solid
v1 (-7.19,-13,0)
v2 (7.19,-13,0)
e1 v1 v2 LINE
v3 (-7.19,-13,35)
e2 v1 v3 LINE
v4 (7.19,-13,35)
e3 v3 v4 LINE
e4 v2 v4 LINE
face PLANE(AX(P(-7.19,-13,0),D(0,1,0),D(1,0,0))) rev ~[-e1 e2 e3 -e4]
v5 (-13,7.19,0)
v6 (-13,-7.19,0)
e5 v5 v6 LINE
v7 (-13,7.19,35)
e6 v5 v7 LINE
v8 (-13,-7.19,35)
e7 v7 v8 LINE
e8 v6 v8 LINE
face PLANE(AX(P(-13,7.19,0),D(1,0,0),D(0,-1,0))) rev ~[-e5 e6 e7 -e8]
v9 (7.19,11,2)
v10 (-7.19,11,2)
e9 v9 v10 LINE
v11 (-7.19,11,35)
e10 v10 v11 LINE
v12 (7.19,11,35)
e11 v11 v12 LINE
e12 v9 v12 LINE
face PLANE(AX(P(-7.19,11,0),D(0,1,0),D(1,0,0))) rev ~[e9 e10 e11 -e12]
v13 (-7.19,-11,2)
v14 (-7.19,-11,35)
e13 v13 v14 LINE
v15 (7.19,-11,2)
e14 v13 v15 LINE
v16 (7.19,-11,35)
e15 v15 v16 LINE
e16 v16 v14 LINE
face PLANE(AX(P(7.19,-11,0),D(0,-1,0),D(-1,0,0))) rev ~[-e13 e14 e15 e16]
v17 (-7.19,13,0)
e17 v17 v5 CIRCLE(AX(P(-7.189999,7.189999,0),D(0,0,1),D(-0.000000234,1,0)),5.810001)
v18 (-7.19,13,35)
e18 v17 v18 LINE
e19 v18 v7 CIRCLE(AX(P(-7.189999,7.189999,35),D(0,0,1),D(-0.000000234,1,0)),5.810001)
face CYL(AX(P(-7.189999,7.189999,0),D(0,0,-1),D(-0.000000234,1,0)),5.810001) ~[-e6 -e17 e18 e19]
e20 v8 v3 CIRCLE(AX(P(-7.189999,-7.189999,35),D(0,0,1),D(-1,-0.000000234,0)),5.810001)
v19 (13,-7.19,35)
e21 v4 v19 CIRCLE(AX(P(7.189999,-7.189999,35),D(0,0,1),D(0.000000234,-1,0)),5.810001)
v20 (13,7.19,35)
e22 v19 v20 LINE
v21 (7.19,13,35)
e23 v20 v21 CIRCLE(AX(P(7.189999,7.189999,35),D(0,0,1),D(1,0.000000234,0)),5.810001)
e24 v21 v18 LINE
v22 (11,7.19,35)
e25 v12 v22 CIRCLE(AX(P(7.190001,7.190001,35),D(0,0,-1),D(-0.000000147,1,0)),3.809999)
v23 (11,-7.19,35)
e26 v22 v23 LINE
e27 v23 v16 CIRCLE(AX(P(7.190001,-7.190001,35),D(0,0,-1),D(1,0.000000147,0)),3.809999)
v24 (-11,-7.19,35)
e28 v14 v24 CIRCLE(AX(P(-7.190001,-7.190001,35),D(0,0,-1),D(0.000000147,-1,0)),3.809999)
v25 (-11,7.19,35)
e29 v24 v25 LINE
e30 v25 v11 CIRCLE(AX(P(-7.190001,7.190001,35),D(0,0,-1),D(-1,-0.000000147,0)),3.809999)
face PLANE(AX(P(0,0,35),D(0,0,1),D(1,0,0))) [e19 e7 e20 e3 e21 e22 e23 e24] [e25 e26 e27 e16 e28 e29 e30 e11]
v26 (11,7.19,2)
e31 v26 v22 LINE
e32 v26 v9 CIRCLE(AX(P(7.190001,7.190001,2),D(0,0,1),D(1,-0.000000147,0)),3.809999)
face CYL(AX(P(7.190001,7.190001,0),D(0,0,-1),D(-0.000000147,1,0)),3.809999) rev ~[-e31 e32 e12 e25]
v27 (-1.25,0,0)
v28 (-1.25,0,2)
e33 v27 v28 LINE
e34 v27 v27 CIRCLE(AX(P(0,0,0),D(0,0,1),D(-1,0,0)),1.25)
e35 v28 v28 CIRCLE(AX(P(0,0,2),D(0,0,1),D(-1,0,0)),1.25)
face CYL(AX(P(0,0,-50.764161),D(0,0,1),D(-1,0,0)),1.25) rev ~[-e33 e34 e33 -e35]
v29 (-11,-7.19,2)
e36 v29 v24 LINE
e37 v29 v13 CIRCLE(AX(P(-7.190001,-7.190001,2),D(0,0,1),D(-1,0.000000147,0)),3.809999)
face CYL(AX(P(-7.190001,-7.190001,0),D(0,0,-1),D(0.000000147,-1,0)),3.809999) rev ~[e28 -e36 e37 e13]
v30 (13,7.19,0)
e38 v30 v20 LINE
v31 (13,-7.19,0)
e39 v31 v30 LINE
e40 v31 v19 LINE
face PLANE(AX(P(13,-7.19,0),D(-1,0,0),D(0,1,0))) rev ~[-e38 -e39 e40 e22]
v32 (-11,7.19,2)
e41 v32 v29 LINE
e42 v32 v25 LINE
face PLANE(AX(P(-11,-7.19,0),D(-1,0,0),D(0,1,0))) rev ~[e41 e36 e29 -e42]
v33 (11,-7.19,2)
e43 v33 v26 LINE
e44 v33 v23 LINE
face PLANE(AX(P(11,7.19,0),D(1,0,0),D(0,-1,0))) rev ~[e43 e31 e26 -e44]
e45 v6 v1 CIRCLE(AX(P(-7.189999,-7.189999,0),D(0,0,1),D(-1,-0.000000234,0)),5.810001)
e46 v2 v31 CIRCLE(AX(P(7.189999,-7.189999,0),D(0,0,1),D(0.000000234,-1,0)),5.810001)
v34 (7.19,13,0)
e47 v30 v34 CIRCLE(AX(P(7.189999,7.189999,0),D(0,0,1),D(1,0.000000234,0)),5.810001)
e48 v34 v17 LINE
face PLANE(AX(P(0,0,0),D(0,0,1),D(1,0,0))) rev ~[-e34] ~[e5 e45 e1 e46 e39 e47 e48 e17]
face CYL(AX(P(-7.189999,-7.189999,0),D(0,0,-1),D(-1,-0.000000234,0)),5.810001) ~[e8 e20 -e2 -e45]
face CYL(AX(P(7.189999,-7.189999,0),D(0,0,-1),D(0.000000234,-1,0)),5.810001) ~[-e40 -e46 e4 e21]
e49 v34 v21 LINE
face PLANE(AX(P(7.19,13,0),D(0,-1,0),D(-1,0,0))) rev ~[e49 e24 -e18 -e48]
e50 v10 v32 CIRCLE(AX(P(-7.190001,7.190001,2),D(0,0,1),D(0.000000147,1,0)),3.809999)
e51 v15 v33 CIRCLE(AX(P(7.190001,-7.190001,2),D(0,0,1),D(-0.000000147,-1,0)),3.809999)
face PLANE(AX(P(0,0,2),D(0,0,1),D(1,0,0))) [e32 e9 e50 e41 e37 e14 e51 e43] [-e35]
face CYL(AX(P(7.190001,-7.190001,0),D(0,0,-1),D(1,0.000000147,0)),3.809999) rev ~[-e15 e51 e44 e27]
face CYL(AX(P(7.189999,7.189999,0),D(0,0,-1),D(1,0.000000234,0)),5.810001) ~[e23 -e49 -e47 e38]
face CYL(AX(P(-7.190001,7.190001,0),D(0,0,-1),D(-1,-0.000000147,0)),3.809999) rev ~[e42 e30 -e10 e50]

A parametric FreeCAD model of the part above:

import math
import FreeCAD as App
import Part
import Sketcher

doc = App.newDocument("Part")
params = doc.addObject("Spreadsheet::Sheet", "Params")
for row, (alias, value) in enumerate([
    ("sketch1_radius", "5.810001 mm"),
    ("sketch1_radius2", "3.809999 mm"),
    ("pad1_length", "35 mm"),
    ("sketch2_radius", "3.809999 mm"),
    ("pad2_length", "2 mm"),
    ("sketch3_diameter", "2.5 mm"),
    ("hole_diameter", "2.5 mm"),
], start=1):
    params.set(f"A{row}", alias)
    params.set(f"B{row}", "=" + value)
    params.setAlias(f"B{row}", alias)

body = doc.addObject("PartDesign::Body", "Body")

# Sketch on XY plane
sketch1 = body.newObject("Sketcher::SketchObject", "Sketch")
sketch1.AttachmentSupport = (doc.getObject("XY_Plane"), [""])
sketch1.MapMode = "FlatFace"
sketch1.addGeometry(Part.LineSegment(App.Vector(13, -7.2, 0), App.Vector(13, 7.2, 0)), False)
sketch1.addGeometry(Part.ArcOfCircle(Part.Circle(App.Vector(7.2, 7.2, 0), App.Vector(0, 0, 1), 5.8), math.radians(0), math.radians(90)), False)
sketch1.addGeometry(Part.LineSegment(App.Vector(7.2, 13, 0), App.Vector(-7.2, 13, 0)), False)
sketch1.addGeometry(Part.ArcOfCircle(Part.Circle(App.Vector(-7.2, 7.2, 0), App.Vector(0, 0, 1), 5.8), math.radians(90), math.radians(180)), False)
sketch1.addGeometry(Part.LineSegment(App.Vector(-13, 7.2, 0), App.Vector(-13, -7.2, 0)), False)
sketch1.addGeometry(Part.ArcOfCircle(Part.Circle(App.Vector(-7.2, -7.2, 0), App.Vector(0, 0, 1), 5.8), math.radians(-180), math.radians(-90)), False)
sketch1.addGeometry(Part.LineSegment(App.Vector(-7.2, -13, 0), App.Vector(7.2, -13, 0)), False)
sketch1.addGeometry(Part.ArcOfCircle(Part.Circle(App.Vector(7.2, -7.2, 0), App.Vector(0, 0, 1), 5.8), math.radians(-90), math.radians(0)), False)
sketch1.addGeometry(Part.LineSegment(App.Vector(-11, -7.2, 0), App.Vector(-11, 7.2, 0)), False)
sketch1.addGeometry(Part.ArcOfCircle(Part.Circle(App.Vector(-7.2, 7.2, 0), App.Vector(0, 0, 1), 3.8), math.radians(90), math.radians(180)), False)
sketch1.addGeometry(Part.LineSegment(App.Vector(-7.2, 11, 0), App.Vector(7.2, 11, 0)), False)
sketch1.addGeometry(Part.ArcOfCircle(Part.Circle(App.Vector(7.2, 7.2, 0), App.Vector(0, 0, 1), 3.8), math.radians(0), math.radians(90)), False)
sketch1.addGeometry(Part.LineSegment(App.Vector(11, 7.2, 0), App.Vector(11, -7.2, 0)), False)
sketch1.addGeometry(Part.ArcOfCircle(Part.Circle(App.Vector(7.2, -7.2, 0), App.Vector(0, 0, 1), 3.8), math.radians(-90), math.radians(0)), False)
sketch1.addGeometry(Part.LineSegment(App.Vector(7.2, -11, 0), App.Vector(-7.2, -11, 0)), False)
sketch1.addGeometry(Part.ArcOfCircle(Part.Circle(App.Vector(-7.2, -7.2, 0), App.Vector(0, 0, 1), 3.8), math.radians(180), math.radians(270)), False)
sketch1.addConstraint(Sketcher.Constraint("Tangent", 0, 2, 1, 1))
sketch1.addConstraint(Sketcher.Constraint("Tangent", 1, 2, 2, 1))
sketch1.addConstraint(Sketcher.Constraint("Tangent", 2, 2, 3, 1))
sketch1.addConstraint(Sketcher.Constraint("Tangent", 3, 2, 4, 1))
sketch1.addConstraint(Sketcher.Constraint("Tangent", 4, 2, 5, 1))
sketch1.addConstraint(Sketcher.Constraint("Tangent", 5, 2, 6, 1))
sketch1.addConstraint(Sketcher.Constraint("Tangent", 6, 2, 7, 1))
sketch1.addConstraint(Sketcher.Constraint("Tangent", 7, 2, 0, 1))
sketch1.addConstraint(Sketcher.Constraint("Tangent", 8, 2, 9, 2))
sketch1.addConstraint(Sketcher.Constraint("Tangent", 9, 1, 10, 1))
sketch1.addConstraint(Sketcher.Constraint("Tangent", 10, 2, 11, 2))
sketch1.addConstraint(Sketcher.Constraint("Tangent", 11, 1, 12, 1))
sketch1.addConstraint(Sketcher.Constraint("Tangent", 12, 2, 13, 2))
sketch1.addConstraint(Sketcher.Constraint("Tangent", 13, 1, 14, 1))
sketch1.addConstraint(Sketcher.Constraint("Tangent", 14, 2, 15, 2))
sketch1.addConstraint(Sketcher.Constraint("Tangent", 15, 1, 8, 1))
sketch1.addConstraint(Sketcher.Constraint("Vertical", 0))
sketch1.addConstraint(Sketcher.Constraint("Horizontal", 2))
sketch1.addConstraint(Sketcher.Constraint("Vertical", 4))
sketch1.addConstraint(Sketcher.Constraint("Horizontal", 6))
sketch1.addConstraint(Sketcher.Constraint("Vertical", 8))
sketch1.addConstraint(Sketcher.Constraint("Horizontal", 10))
sketch1.addConstraint(Sketcher.Constraint("Vertical", 12))
sketch1.addConstraint(Sketcher.Constraint("Horizontal", 14))
sketch1.addConstraint(Sketcher.Constraint("Coincident", 9, 3, 3, 3))
sketch1.addConstraint(Sketcher.Constraint("Coincident", 11, 3, 1, 3))
sketch1.addConstraint(Sketcher.Constraint("Coincident", 13, 3, 7, 3))
sketch1.addConstraint(Sketcher.Constraint("Equal", 1, 3))
sketch1.addConstraint(Sketcher.Constraint("Equal", 3, 5))
sketch1.addConstraint(Sketcher.Constraint("Equal", 5, 7))
sketch1.addConstraint(Sketcher.Constraint("Equal", 13, 15))
sketch1.addConstraint(Sketcher.Constraint("Symmetric", 1, 3, 5, 3, -1, 1))
sketch1.addConstraint(Sketcher.Constraint("Equal", 14, 0))
sketch1.addConstraint(Sketcher.Constraint("Radius", 1, 5.810001))
sketch1.addConstraint(Sketcher.Constraint("Radius", 9, 3.809999))
sketch1.addConstraint(Sketcher.Constraint("DistanceX", -1, 1, 0, 2, 13.0))
sketch1.setExpression("Constraints[33]", "Params.sketch1_radius")
sketch1.setExpression("Constraints[34]", "Params.sketch1_radius2")
pad1 = body.newObject("PartDesign::Pad", "Pad")
pad1.Profile = sketch1
pad1.setExpression("Length", "Params.pad1_length")

# Sketch on XY plane
sketch2 = body.newObject("Sketcher::SketchObject", "Sketch001")
sketch2.AttachmentSupport = (doc.getObject("XY_Plane"), [""])
sketch2.MapMode = "FlatFace"
sketch2.addGeometry(Part.LineSegment(App.Vector(7.2, 11, 0), App.Vector(-7.2, 11, 0)), False)
sketch2.addGeometry(Part.ArcOfCircle(Part.Circle(App.Vector(-7.2, 7.2, 0), App.Vector(0, 0, 1), 3.8), math.radians(90), math.radians(180)), False)
sketch2.addGeometry(Part.LineSegment(App.Vector(-11, 7.2, 0), App.Vector(-11, -7.2, 0)), False)
sketch2.addGeometry(Part.ArcOfCircle(Part.Circle(App.Vector(-7.2, -7.2, 0), App.Vector(0, 0, 1), 3.8), math.radians(180), math.radians(270)), False)
sketch2.addGeometry(Part.LineSegment(App.Vector(-7.2, -11, 0), App.Vector(7.2, -11, 0)), False)
sketch2.addGeometry(Part.ArcOfCircle(Part.Circle(App.Vector(7.2, -7.2, 0), App.Vector(0, 0, 1), 3.8), math.radians(-90), math.radians(0)), False)
sketch2.addGeometry(Part.LineSegment(App.Vector(11, -7.2, 0), App.Vector(11, 7.2, 0)), False)
sketch2.addGeometry(Part.ArcOfCircle(Part.Circle(App.Vector(7.2, 7.2, 0), App.Vector(0, 0, 1), 3.8), math.radians(0), math.radians(90)), False)
sketch2.addConstraint(Sketcher.Constraint("Tangent", 0, 2, 1, 1))
sketch2.addConstraint(Sketcher.Constraint("Tangent", 1, 2, 2, 1))
sketch2.addConstraint(Sketcher.Constraint("Tangent", 2, 2, 3, 1))
sketch2.addConstraint(Sketcher.Constraint("Tangent", 3, 2, 4, 1))
sketch2.addConstraint(Sketcher.Constraint("Tangent", 4, 2, 5, 1))
sketch2.addConstraint(Sketcher.Constraint("Tangent", 5, 2, 6, 1))
sketch2.addConstraint(Sketcher.Constraint("Tangent", 6, 2, 7, 1))
sketch2.addConstraint(Sketcher.Constraint("Tangent", 7, 2, 0, 1))
sketch2.addConstraint(Sketcher.Constraint("Horizontal", 0))
sketch2.addConstraint(Sketcher.Constraint("Vertical", 2))
sketch2.addConstraint(Sketcher.Constraint("Horizontal", 4))
sketch2.addConstraint(Sketcher.Constraint("Vertical", 6))
sketch2.addConstraint(Sketcher.Constraint("Equal", 1, 3))
sketch2.addConstraint(Sketcher.Constraint("Equal", 3, 5))
sketch2.addConstraint(Sketcher.Constraint("Equal", 5, 7))
sketch2.addConstraint(Sketcher.Constraint("Symmetric", 1, 3, 5, 3, -1, 1))
sketch2.addConstraint(Sketcher.Constraint("Equal", 4, 2))
sketch2.addConstraint(Sketcher.Constraint("Radius", 1, 3.809999))
sketch2.addConstraint(Sketcher.Constraint("DistanceY", -1, 1, 0, 2, 11.0))
sketch2.setExpression("Constraints[17]", "Params.sketch2_radius")
pad2 = body.newObject("PartDesign::Pad", "Pad001")
pad2.Profile = sketch2
pad2.setExpression("Length", "Params.pad2_length")

# Sketch on XY plane
sketch3 = body.newObject("Sketcher::SketchObject", "Sketch002")
sketch3.AttachmentSupport = (doc.getObject("XY_Plane"), [""])
sketch3.MapMode = "FlatFace"
sketch3.addGeometry(Part.Circle(App.Vector(0, 0, 0), App.Vector(0, 0, 1), 1.2), False)
sketch3.addConstraint(Sketcher.Constraint("Coincident", 0, 3, -1, 1))
sketch3.addConstraint(Sketcher.Constraint("Diameter", 0, 2.5))
sketch3.setExpression("Constraints[1]", "Params.sketch3_diameter")
doc.recompute()
hole = body.newObject("PartDesign::Hole", "Hole")
hole.Profile = sketch3
hole.ThreadType = "None"
hole.setExpression("Diameter", "Params.hole_diameter")
hole.DepthType = "ThroughAll"
hole.Reversed = True

doc.recompute()
